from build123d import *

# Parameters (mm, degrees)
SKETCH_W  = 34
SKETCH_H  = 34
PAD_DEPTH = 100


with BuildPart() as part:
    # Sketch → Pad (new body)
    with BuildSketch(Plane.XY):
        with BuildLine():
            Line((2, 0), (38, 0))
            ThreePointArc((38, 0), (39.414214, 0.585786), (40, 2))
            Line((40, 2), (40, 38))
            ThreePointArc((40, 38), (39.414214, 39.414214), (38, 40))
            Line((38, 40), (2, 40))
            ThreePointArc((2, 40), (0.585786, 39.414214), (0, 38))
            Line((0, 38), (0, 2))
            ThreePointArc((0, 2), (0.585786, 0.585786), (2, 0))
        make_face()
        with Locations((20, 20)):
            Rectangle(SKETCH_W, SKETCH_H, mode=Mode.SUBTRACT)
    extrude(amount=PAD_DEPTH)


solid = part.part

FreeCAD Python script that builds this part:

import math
import FreeCAD as App
import Part
import Sketcher
Q = App.Units.Quantity

doc = App.newDocument("Part")
body = doc.addObject("PartDesign::Body", "Body")

# Sketch on XY plane
sketch1 = body.newObject("Sketcher::SketchObject", "Sketch")
sketch1.AttachmentSupport = (doc.getObject("XY_Plane"), [""])
sketch1.MapMode = "FlatFace"
sketch1.addGeometry([
    Part.LineSegment(App.Vector(2, 0, 0), App.Vector(38, 0, 0)),  # 0
    Part.ArcOfCircle(Part.Circle(App.Vector(38, 2, 0), App.Vector(0, 0, 1), 2), math.radians(-90), math.radians(0)),  # 1
    Part.LineSegment(App.Vector(40, 2, 0), App.Vector(40, 38, 0)),  # 2
    Part.ArcOfCircle(Part.Circle(App.Vector(38, 38, 0), App.Vector(0, 0, 1), 2), math.radians(0), math.radians(90)),  # 3
    Part.LineSegment(App.Vector(38, 40, 0), App.Vector(2, 40, 0)),  # 4
    Part.ArcOfCircle(Part.Circle(App.Vector(2, 38, 0), App.Vector(0, 0, 1), 2), math.radians(90), math.radians(180)),  # 5
    Part.LineSegment(App.Vector(0, 38, 0), App.Vector(0, 2, 0)),  # 6
    Part.ArcOfCircle(Part.Circle(App.Vector(2, 2, 0), App.Vector(0, 0, 1), 2), math.radians(180), math.radians(270)),  # 7
    Part.LineSegment(App.Vector(37, 3, 0), App.Vector(3, 3, 0)),  # 8
    Part.LineSegment(App.Vector(3, 3, 0), App.Vector(3, 37, 0)),  # 9
    Part.LineSegment(App.Vector(3, 37, 0), App.Vector(37, 37, 0)),  # 10
    Part.LineSegment(App.Vector(37, 37, 0), App.Vector(37, 3, 0)),  # 11
], False)
sketch1.addConstraint([
    Sketcher.Constraint("Tangent", 0, 2, 1, 1),
    Sketcher.Constraint("Tangent", 1, 2, 2, 1),
    Sketcher.Constraint("Tangent", 2, 2, 3, 1),
    Sketcher.Constraint("Tangent", 3, 2, 4, 1),
    Sketcher.Constraint("Tangent", 4, 2, 5, 1),
    Sketcher.Constraint("Tangent", 5, 2, 6, 1),
    Sketcher.Constraint("Tangent", 6, 2, 7, 1),
    Sketcher.Constraint("Tangent", 7, 2, 0, 1),
    Sketcher.Constraint("Coincident", 8, 2, 9, 1),
    Sketcher.Constraint("Coincident", 9, 2, 10, 1),
    Sketcher.Constraint("Coincident", 10, 2, 11, 1),
    Sketcher.Constraint("Coincident", 11, 2, 8, 1),
    Sketcher.Constraint("Horizontal", 0),
    Sketcher.Constraint("Vertical", 2),
    Sketcher.Constraint("Horizontal", 4),
    Sketcher.Constraint("Vertical", 6),
    Sketcher.Constraint("Horizontal", 8),
    Sketcher.Constraint("Vertical", 9),
    Sketcher.Constraint("Horizontal", 10),
    Sketcher.Constraint("Vertical", 11),
    Sketcher.Constraint("Equal", 1, 3),
    Sketcher.Constraint("Equal", 3, 5),
    Sketcher.Constraint("Equal", 5, 7),
    Sketcher.Constraint("PointOnObject", 0, 2, -1),
    Sketcher.Constraint("PointOnObject", 5, 2, -2),
    Sketcher.Constraint("Equal", 4, 2),
    Sketcher.Constraint("Equal", 10, 9),
    Sketcher.Constraint("Radius", 1, Q("1.999999 mm")),
    Sketcher.Constraint("DistanceX", 0, 1, 0, 2, Q("36 mm")),
    Sketcher.Constraint("DistanceX", 8, 2, 8, 1, Q("34 mm")),
    Sketcher.Constraint("DistanceX", -1, 1, 8, 2, Q("3 mm")),
    Sketcher.Constraint("DistanceY", -1, 1, 8, 2, Q("3 mm")),
])
pad1 = body.newObject("PartDesign::Pad", "Pad")
pad1.Profile = sketch1
pad1.Length = 100

doc.recompute()
